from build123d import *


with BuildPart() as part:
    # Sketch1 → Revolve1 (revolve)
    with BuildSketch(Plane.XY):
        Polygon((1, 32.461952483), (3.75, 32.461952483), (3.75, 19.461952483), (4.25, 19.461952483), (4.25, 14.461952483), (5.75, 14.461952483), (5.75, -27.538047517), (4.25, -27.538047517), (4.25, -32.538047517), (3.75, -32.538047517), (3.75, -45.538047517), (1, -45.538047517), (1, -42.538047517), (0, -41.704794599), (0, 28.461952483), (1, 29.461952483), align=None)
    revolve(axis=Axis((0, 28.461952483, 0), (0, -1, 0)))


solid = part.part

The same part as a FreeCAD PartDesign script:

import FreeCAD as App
import Part
import Sketcher
Q = App.Units.Quantity

doc = App.newDocument("Part")
body = doc.addObject("PartDesign::Body", "Body")

# Sketch on XY plane
sketch1 = body.newObject("Sketcher::SketchObject", "Sketch")
sketch1.AttachmentSupport = (doc.getObject("XY_Plane"), [""])
sketch1.MapMode = "FlatFace"
sketch1.addGeometry(Part.LineSegment(App.Vector(3.8, 32.5, 0), App.Vector(1, 32.5, 0)), False)
sketch1.addGeometry(Part.LineSegment(App.Vector(1, 32.5, 0), App.Vector(1, 29.5, 0)), False)
sketch1.addGeometry(Part.LineSegment(App.Vector(1, 29.5, 0), App.Vector(0, 28.5, 0)), False)
sketch1.addGeometry(Part.LineSegment(App.Vector(0, 28.5, 0), App.Vector(0, -41.7, 0)), False)
sketch1.addGeometry(Part.LineSegment(App.Vector(0, -41.7, 0), App.Vector(1, -42.5, 0)), False)
sketch1.addGeometry(Part.LineSegment(App.Vector(1, -42.5, 0), App.Vector(1, -45.5, 0)), False)
sketch1.addGeometry(Part.LineSegment(App.Vector(1, -45.5, 0), App.Vector(3.8, -45.5, 0)), False)
sketch1.addGeometry(Part.LineSegment(App.Vector(3.8, -45.5, 0), App.Vector(3.8, -32.5, 0)), False)
sketch1.addGeometry(Part.LineSegment(App.Vector(3.8, -32.5, 0), App.Vector(4.2, -32.5, 0)), False)
sketch1.addGeometry(Part.LineSegment(App.Vector(4.2, -32.5, 0), App.Vector(4.2, -27.5, 0)), False)
sketch1.addGeometry(Part.LineSegment(App.Vector(4.2, -27.5, 0), App.Vector(5.8, -27.5, 0)), False)
sketch1.addGeometry(Part.LineSegment(App.Vector(5.8, -27.5, 0), App.Vector(5.8, 14.5, 0)), False)
sketch1.addGeometry(Part.LineSegment(App.Vector(5.8, 14.5, 0), App.Vector(4.2, 14.5, 0)), False)
sketch1.addGeometry(Part.LineSegment(App.Vector(4.2, 14.5, 0), App.Vector(4.2, 19.5, 0)), False)
sketch1.addGeometry(Part.LineSegment(App.Vector(4.2, 19.5, 0), App.Vector(3.8, 19.5, 0)), False)
sketch1.addGeometry(Part.LineSegment(App.Vector(3.8, 19.5, 0), App.Vector(3.8, 32.5, 0)), False)
sketch1.addConstraint(Sketcher.Constraint("Coincident", 0, 2, 1, 1))
sketch1.addConstraint(Sketcher.Constraint("Coincident", 1, 2, 2, 1))
sketch1.addConstraint(Sketcher.Constraint("Coincident", 2, 2, 3, 1))
sketch1.addConstraint(Sketcher.Constraint("Coincident", 3, 2, 4, 1))
sketch1.addConstraint(Sketcher.Constraint("Coincident", 4, 2, 5, 1))
sketch1.addConstraint(Sketcher.Constraint("Coincident", 5, 2, 6, 1))
sketch1.addConstraint(Sketcher.Constraint("Coincident", 6, 2, 7, 1))
sketch1.addConstraint(Sketcher.Constraint("Coincident", 7, 2, 8, 1))
sketch1.addConstraint(Sketcher.Constraint("Coincident", 8, 2, 9, 1))
sketch1.addConstraint(Sketcher.Constraint("Coincident", 9, 2, 10, 1))
sketch1.addConstraint(Sketcher.Constraint("Coincident", 10, 2, 11, 1))
sketch1.addConstraint(Sketcher.Constraint("Coincident", 11, 2, 12, 1))
sketch1.addConstraint(Sketcher.Constraint("Coincident", 12, 2, 13, 1))
sketch1.addConstraint(Sketcher.Constraint("Coincident", 13, 2, 14, 1))
sketch1.addConstraint(Sketcher.Constraint("Coincident", 14, 2, 15, 1))
sketch1.addConstraint(Sketcher.Constraint("Coincident", 15, 2, 0, 1))
sketch1.addConstraint(Sketcher.Constraint("Horizontal", 0))
sketch1.addConstraint(Sketcher.Constraint("Vertical", 1))
sketch1.addConstraint(Sketcher.Constraint("Vertical", 3))
sketch1.addConstraint(Sketcher.Constraint("Vertical", 5))
sketch1.addConstraint(Sketcher.Constraint("Horizontal", 6))
sketch1.addConstraint(Sketcher.Constraint("Vertical", 7))
sketch1.addConstraint(Sketcher.Constraint("Horizontal", 8))
sketch1.addConstraint(Sketcher.Constraint("Vertical", 9))
sketch1.addConstraint(Sketcher.Constraint("Horizontal", 10))
sketch1.addConstraint(Sketcher.Constraint("Vertical", 11))
sketch1.addConstraint(Sketcher.Constraint("Horizontal", 12))
sketch1.addConstraint(Sketcher.Constraint("Vertical", 13))
sketch1.addConstraint(Sketcher.Constraint("Horizontal", 14))
sketch1.addConstraint(Sketcher.Constraint("Vertical", 15))
sketch1.addConstraint(Sketcher.Constraint("PointOnObject", 2, 2, -2))
sketch1.addConstraint(Sketcher.Constraint("Vertical", 1, 2, 4, 2))
sketch1.addConstraint(Sketcher.Constraint("Vertical", 9, 2, 12, 2))
sketch1.addConstraint(Sketcher.Constraint("Vertical", 7, 2, 14, 2))
sketch1.addConstraint(Sketcher.Constraint("Equal", 1, 5))
sketch1.addConstraint(Sketcher.Constraint("Equal", 9, 13))
sketch1.addConstraint(Sketcher.Constraint("Equal", 7, 15))
sketch1.addConstraint(Sketcher.Constraint("DistanceY", 1, 2, 1, 1, 3.0))
sketch1.addConstraint(Sketcher.Constraint("DistanceY", 7, 1, 7, 2, 13.0))
sketch1.addConstraint(Sketcher.Constraint("DistanceY", 9, 1, 9, 2, 5.0))
sketch1.addConstraint(Sketcher.Constraint("DistanceY", 11, 1, 11, 2, 42.0))
sketch1.addConstraint(Sketcher.Constraint("Angle", 2, Q("-135 deg")))
sketch1.addConstraint(Sketcher.Constraint("DistanceX", 8, 1, 8, 2, 0.5))
sketch1.addConstraint(Sketcher.Constraint("DistanceX", 10, 1, 10, 2, 1.5))
sketch1.addConstraint(Sketcher.Constraint("DistanceX", -1, 1, 0, 2, 1.0))
sketch1.addConstraint(Sketcher.Constraint("DistanceX", 0, 2, 0, 1, 2.75))
sketch1.addConstraint(Sketcher.Constraint("DistanceY", 3, 2, 3, 1, 70.166747))
sketch1.addConstraint(Sketcher.Constraint("DistanceY", -1, 1, 0, 2, 32.461952))
revolution = body.newObject("PartDesign::Revolution", "Revolution")
revolution.Profile = sketch1
revolution.ReferenceAxis = (sketch1, ["V_Axis"])
revolution.Angle = 360

doc.recompute()
